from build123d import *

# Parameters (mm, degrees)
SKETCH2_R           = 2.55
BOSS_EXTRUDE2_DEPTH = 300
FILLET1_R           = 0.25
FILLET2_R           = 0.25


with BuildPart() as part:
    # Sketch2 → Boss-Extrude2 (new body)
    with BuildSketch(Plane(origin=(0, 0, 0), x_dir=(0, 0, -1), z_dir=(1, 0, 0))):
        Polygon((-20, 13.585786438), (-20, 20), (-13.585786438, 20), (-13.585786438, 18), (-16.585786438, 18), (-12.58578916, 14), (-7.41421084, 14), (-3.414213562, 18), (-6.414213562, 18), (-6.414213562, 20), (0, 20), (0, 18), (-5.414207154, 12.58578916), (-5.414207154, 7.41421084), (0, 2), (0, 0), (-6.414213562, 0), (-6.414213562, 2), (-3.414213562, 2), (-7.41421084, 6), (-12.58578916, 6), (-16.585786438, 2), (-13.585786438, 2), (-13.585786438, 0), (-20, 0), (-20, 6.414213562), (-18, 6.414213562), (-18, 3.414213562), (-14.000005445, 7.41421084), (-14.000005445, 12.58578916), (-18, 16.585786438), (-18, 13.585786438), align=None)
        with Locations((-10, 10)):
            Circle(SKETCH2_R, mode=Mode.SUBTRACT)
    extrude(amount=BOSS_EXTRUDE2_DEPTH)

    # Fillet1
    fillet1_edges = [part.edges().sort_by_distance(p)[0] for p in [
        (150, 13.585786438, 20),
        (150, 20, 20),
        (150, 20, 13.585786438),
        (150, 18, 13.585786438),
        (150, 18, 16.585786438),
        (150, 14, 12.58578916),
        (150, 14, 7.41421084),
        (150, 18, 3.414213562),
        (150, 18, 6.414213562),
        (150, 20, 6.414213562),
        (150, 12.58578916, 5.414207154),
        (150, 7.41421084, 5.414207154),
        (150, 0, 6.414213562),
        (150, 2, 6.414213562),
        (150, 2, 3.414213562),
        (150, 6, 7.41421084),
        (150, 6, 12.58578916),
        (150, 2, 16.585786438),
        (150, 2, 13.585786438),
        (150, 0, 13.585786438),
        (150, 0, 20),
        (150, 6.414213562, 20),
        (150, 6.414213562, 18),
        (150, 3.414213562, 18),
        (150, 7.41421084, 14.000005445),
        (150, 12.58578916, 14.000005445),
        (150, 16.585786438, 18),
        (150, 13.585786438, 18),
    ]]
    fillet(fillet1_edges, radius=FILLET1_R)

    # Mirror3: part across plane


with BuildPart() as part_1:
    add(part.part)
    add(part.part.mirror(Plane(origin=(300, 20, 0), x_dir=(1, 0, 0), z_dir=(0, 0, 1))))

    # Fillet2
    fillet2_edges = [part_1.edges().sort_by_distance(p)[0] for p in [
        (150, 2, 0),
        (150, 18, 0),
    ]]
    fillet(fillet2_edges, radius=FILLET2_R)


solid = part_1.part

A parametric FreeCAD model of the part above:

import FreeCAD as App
import Part
import Sketcher
Q = App.Units.Quantity


def edges_at(feature, points):
    """Names of the edges that pass closest to the given points."""
    edges = feature.Shape.Edges
    near = lambda p: min(range(len(edges)), key=lambda i: edges[i].distToShape(Part.Vertex(*p))[0])
    return sorted({f"Edge{near(p) + 1}" for p in points})

doc = App.newDocument("Part")
body = doc.addObject("PartDesign::Body", "Body")

# Sketch on YZ plane
sketch1 = doc.addObject("Sketcher::SketchObject", "Sketch")
body.addObject(sketch1)
sketch1.AttachmentSupport = (doc.YZ_Plane, [""])
sketch1.MapMode = "FlatFace"
sketch1.addGeometry([
    Part.LineSegment(App.Vector(20, 20, 0), App.Vector(13.6, 20, 0)),  # 0
    Part.LineSegment(App.Vector(13.6, 20, 0), App.Vector(13.6, 18, 0)),  # 1
    Part.LineSegment(App.Vector(13.6, 18, 0), App.Vector(16.6, 18, 0)),  # 2
    Part.LineSegment(App.Vector(16.6, 18, 0), App.Vector(12.6, 14, 0)),  # 3
    Part.LineSegment(App.Vector(12.6, 14, 0), App.Vector(7.4, 14, 0)),  # 4
    Part.LineSegment(App.Vector(7.4, 14, 0), App.Vector(3.4, 18, 0)),  # 5
    Part.LineSegment(App.Vector(3.4, 18, 0), App.Vector(6.4, 18, 0)),  # 6
    Part.LineSegment(App.Vector(6.4, 18, 0), App.Vector(6.4, 20, 0)),  # 7
    Part.LineSegment(App.Vector(6.4, 20, 0), App.Vector(0, 20, 0)),  # 8
    Part.LineSegment(App.Vector(0, 20, 0), App.Vector(0, 13.6, 0)),  # 9
    Part.LineSegment(App.Vector(0, 13.6, 0), App.Vector(2, 13.6, 0)),  # 10
    Part.LineSegment(App.Vector(2, 13.6, 0), App.Vector(2, 16.6, 0)),  # 11
    Part.LineSegment(App.Vector(2, 16.6, 0), App.Vector(6, 12.6, 0)),  # 12
    Part.LineSegment(App.Vector(6, 12.6, 0), App.Vector(6, 7.4, 0)),  # 13
    Part.LineSegment(App.Vector(6, 7.4, 0), App.Vector(2, 3.4, 0)),  # 14
    Part.LineSegment(App.Vector(2, 3.4, 0), App.Vector(2, 6.4, 0)),  # 15
    Part.LineSegment(App.Vector(2, 6.4, 0), App.Vector(0, 6.4, 0)),  # 16
    Part.LineSegment(App.Vector(0, 6.4, 0), App.Vector(0, 0, 0)),  # 17
    Part.LineSegment(App.Vector(0, 0, 0), App.Vector(2, 0, 0)),  # 18
    Part.LineSegment(App.Vector(2, 0, 0), App.Vector(7.4, 5.4, 0)),  # 19
    Part.LineSegment(App.Vector(7.4, 5.4, 0), App.Vector(12.6, 5.4, 0)),  # 20
    Part.LineSegment(App.Vector(12.6, 5.4, 0), App.Vector(18, 0, 0)),  # 21
    Part.LineSegment(App.Vector(18, 0, 0), App.Vector(20, 0, 0)),  # 22
    Part.LineSegment(App.Vector(20, 0, 0), App.Vector(20, 6.4, 0)),  # 23
    Part.LineSegment(App.Vector(20, 6.4, 0), App.Vector(18, 6.4, 0)),  # 24
    Part.LineSegment(App.Vector(18, 6.4, 0), App.Vector(18, 3.4, 0)),  # 25
    Part.LineSegment(App.Vector(18, 3.4, 0), App.Vector(14, 7.4, 0)),  # 26
    Part.LineSegment(App.Vector(14, 7.4, 0), App.Vector(14, 12.6, 0)),  # 27
    Part.LineSegment(App.Vector(14, 12.6, 0), App.Vector(18, 16.6, 0)),  # 28
    Part.LineSegment(App.Vector(18, 16.6, 0), App.Vector(18, 13.6, 0)),  # 29
    Part.LineSegment(App.Vector(18, 13.6, 0), App.Vector(20, 13.6, 0)),  # 30
    Part.LineSegment(App.Vector(20, 13.6, 0), App.Vector(20, 20, 0)),  # 31
    Part.Circle(App.Vector(10, 10, 0), App.Vector(0, 0, 1), 2.5),  # 32
], False)
sketch1.addConstraint([
    Sketcher.Constraint("Coincident", 0, 2, 1, 1),
    Sketcher.Constraint("Coincident", 1, 2, 2, 1),
    Sketcher.Constraint("Coincident", 2, 2, 3, 1),
    Sketcher.Constraint("Coincident", 3, 2, 4, 1),
    Sketcher.Constraint("Coincident", 4, 2, 5, 1),
    Sketcher.Constraint("Coincident", 5, 2, 6, 1),
    Sketcher.Constraint("Coincident", 6, 2, 7, 1),
    Sketcher.Constraint("Coincident", 7, 2, 8, 1),
    Sketcher.Constraint("Coincident", 8, 2, 9, 1),
    Sketcher.Constraint("Coincident", 9, 2, 10, 1),
    Sketcher.Constraint("Coincident", 10, 2, 11, 1),
    Sketcher.Constraint("Coincident", 11, 2, 12, 1),
    Sketcher.Constraint("Coincident", 12, 2, 13, 1),
    Sketcher.Constraint("Coincident", 13, 2, 14, 1),
    Sketcher.Constraint("Coincident", 14, 2, 15, 1),
    Sketcher.Constraint("Coincident", 15, 2, 16, 1),
    Sketcher.Constraint("Coincident", 16, 2, 17, 1),
    Sketcher.Constraint("Coincident", 17, 2, 18, 1),
    Sketcher.Constraint("Coincident", 18, 2, 19, 1),
    Sketcher.Constraint("Coincident", 19, 2, 20, 1),
    Sketcher.Constraint("Coincident", 20, 2, 21, 1),
    Sketcher.Constraint("Coincident", 21, 2, 22, 1),
    Sketcher.Constraint("Coincident", 22, 2, 23, 1),
    Sketcher.Constraint("Coincident", 23, 2, 24, 1),
    Sketcher.Constraint("Coincident", 24, 2, 25, 1),
    Sketcher.Constraint("Coincident", 25, 2, 26, 1),
    Sketcher.Constraint("Coincident", 26, 2, 27, 1),
    Sketcher.Constraint("Coincident", 27, 2, 28, 1),
    Sketcher.Constraint("Coincident", 28, 2, 29, 1),
    Sketcher.Constraint("Coincident", 29, 2, 30, 1),
    Sketcher.Constraint("Coincident", 30, 2, 31, 1),
    Sketcher.Constraint("Coincident", 31, 2, 0, 1),
    Sketcher.Constraint("Horizontal", 0),
    Sketcher.Constraint("Vertical", 1),
    Sketcher.Constraint("Horizontal", 2),
    Sketcher.Constraint("Horizontal", 4),
    Sketcher.Constraint("Horizontal", 6),
    Sketcher.Constraint("Vertical", 7),
    Sketcher.Constraint("Horizontal", 8),
    Sketcher.Constraint("Vertical", 9),
    Sketcher.Constraint("Horizontal", 10),
    Sketcher.Constraint("Vertical", 11),
    Sketcher.Constraint("Vertical", 13),
    Sketcher.Constraint("Vertical", 15),
    Sketcher.Constraint("Horizontal", 16),
    Sketcher.Constraint("Vertical", 17),
    Sketcher.Constraint("Horizontal", 18),
    Sketcher.Constraint("Horizontal", 20),
    Sketcher.Constraint("Horizontal", 22),
    Sketcher.Constraint("Vertical", 23),
    Sketcher.Constraint("Horizontal", 24),
    Sketcher.Constraint("Vertical", 25),
    Sketcher.Constraint("Vertical", 27),
    Sketcher.Constraint("Vertical", 29),
    Sketcher.Constraint("Horizontal", 30),
    Sketcher.Constraint("Vertical", 31),
    Sketcher.Constraint("Coincident", 17, 2, -1, 1),
    Sketcher.Constraint("PointOnObject", 8, 2, -2),
    Sketcher.Constraint("PointOnObject", 21, 2, -1),
    Sketcher.Constraint("Perpendicular", 3, 5),
    Sketcher.Constraint("Parallel", 5, 12),
    Sketcher.Constraint("Perpendicular", 12, 14),
    Sketcher.Constraint("Parallel", 14, 19),
    Sketcher.Constraint("Perpendicular", 19, 21),
    Sketcher.Constraint("Parallel", 21, 26),
    Sketcher.Constraint("Perpendicular", 26, 28),
    Sketcher.Constraint("Horizontal", 2, 2, 5, 2),
    Sketcher.Constraint("Horizontal", 0, 2, 7, 2),
    Sketcher.Constraint("Horizontal", 16, 2, 23, 2),
    Sketcher.Constraint("Horizontal", 14, 2, 25, 2),
    Sketcher.Constraint("Horizontal", 13, 2, 26, 2),
    Sketcher.Constraint("Horizontal", 12, 2, 27, 2),
    Sketcher.Constraint("Horizontal", 11, 2, 28, 2),
    Sketcher.Constraint("Horizontal", 10, 2, 29, 2),
    Sketcher.Constraint("Vertical", 11, 2, 14, 2),
    Sketcher.Constraint("Vertical", 15, 2, 18, 2),
    Sketcher.Constraint("Vertical", 4, 2, 19, 2),
    Sketcher.Constraint("Vertical", 3, 2, 20, 2),
    Sketcher.Constraint("Vertical", 21, 2, 24, 2),
    Sketcher.Constraint("Vertical", 25, 2, 28, 2),
    Sketcher.Constraint("Vertical", 23, 2, 30, 2),
    Sketcher.Constraint("Equal", 2, 6),
    Sketcher.Constraint("Equal", 0, 8),
    Sketcher.Constraint("Equal", 30, 1),
    Sketcher.Constraint("Equal", 8, 9),
    Sketcher.Constraint("Equal", 6, 11),
    Sketcher.Constraint("Equal", 20, 13),
    Sketcher.Constraint("Equal", 11, 15),
    Sketcher.Constraint("Equal", 9, 17),
    Sketcher.Constraint("Diameter", 32, Q("5.1 mm")),
    Sketcher.Constraint("DistanceX", 2, 1, 2, 2, Q("3 mm")),
    Sketcher.Constraint("DistanceX", 10, 1, 10, 2, Q("2 mm")),
    Sketcher.Constraint("DistanceX", -1, 1, 32, 3, Q("10 mm")),
    Sketcher.Constraint("DistanceY", -1, 1, 32, 3, Q("10 mm")),
    Sketcher.Constraint("DistanceY", -1, 1, 0, 2, Q("20 mm")),
    Sketcher.Constraint("DistanceX", -1, 1, 12, 2, Q("6 mm")),
    Sketcher.Constraint("DistanceX", -1, 1, 21, 2, Q("18 mm")),
    Sketcher.Constraint("DistanceX", 4, 2, 4, 1, Q("5.171578 mm")),
])
pad1 = doc.addObject("PartDesign::Pad", "Pad")
body.addObject(pad1)
pad1.Profile = sketch1
pad1.Length = 300
doc.recompute()

fillet = doc.addObject("PartDesign::Fillet", "Fillet")
body.addObject(fillet)
fillet.Base = (pad1, edges_at(pad1, [
    (150, 13.586, 20),
    (150, 20, 20),
    (150, 20, 13.586),
    (150, 18, 13.586),
    (150, 18, 16.586),
    (150, 14, 12.586),
    (150, 14, 7.414),
    (150, 18, 3.414),
    (150, 18, 6.414),
    (150, 20, 6.414),
    (150, 12.586, 5.414),
    (150, 7.414, 5.414),
    (150, 0, 6.414),
    (150, 2, 6.414),
    (150, 2, 3.414),
    (150, 6, 7.414),
    (150, 6, 12.586),
    (150, 2, 16.586),
    (150, 2, 13.586),
    (150, 0, 13.586),
    (150, 0, 20),
    (150, 6.414, 20),
    (150, 6.414, 18),
    (150, 3.414, 18),
    (150, 7.414, 14),
    (150, 12.586, 14),
    (150, 16.586, 18),
    (150, 13.586, 18),
]))
fillet.Radius = 0.25
body2 = doc.addObject("PartDesign::Body", "Body001")
doc.recompute()

body2.BaseFeature = body
doc.recompute()

mirroring = doc.addObject("Part::Mirroring", "Mirroring")
mirroring.Source = body
mirroring.Base = App.Vector(300, 20, 0)
mirroring.Normal = App.Vector(0, 0, 1)
body3 = doc.addObject("PartDesign::Body", "Body002")
body3.BaseFeature = mirroring
boolean = doc.addObject("PartDesign::Boolean", "Boolean")
body2.addObject(boolean)
boolean.Type = "Fuse"
boolean.addObjects([body3])
doc.recompute()

fillet2 = doc.addObject("PartDesign::Fillet", "Fillet001")
body2.addObject(fillet2)
fillet2.Base = (boolean, edges_at(boolean, [(150, 2, 0), (150, 18, 0)]))
fillet2.Radius = 0.25
mirroring.Visibility = False

doc.recompute()
